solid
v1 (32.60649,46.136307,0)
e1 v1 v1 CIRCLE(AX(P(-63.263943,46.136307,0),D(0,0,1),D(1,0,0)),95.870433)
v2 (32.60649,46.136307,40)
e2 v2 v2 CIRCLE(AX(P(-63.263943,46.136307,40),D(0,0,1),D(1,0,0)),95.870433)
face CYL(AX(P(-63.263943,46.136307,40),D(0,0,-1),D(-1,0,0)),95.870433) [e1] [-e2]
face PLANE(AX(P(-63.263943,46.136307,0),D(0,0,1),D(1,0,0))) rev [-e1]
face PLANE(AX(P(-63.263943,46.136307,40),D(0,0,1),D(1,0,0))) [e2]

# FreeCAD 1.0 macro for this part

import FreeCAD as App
import Part
import Sketcher
Q = App.Units.Quantity

doc = App.newDocument("Part")
body = doc.addObject("PartDesign::Body", "Body")

# Sketch on XY plane
sketch1 = body.newObject("Sketcher::SketchObject", "Sketch")
sketch1.AttachmentSupport = (doc.getObject("XY_Plane"), [""])
sketch1.MapMode = "FlatFace"
sketch1.addGeometry(Part.Circle(App.Vector(-63, 46, 0), App.Vector(0, 0, 1), 96), False)
sketch1.addConstraint([
    Sketcher.Constraint("Diameter", 0, Q("191.740865 mm")),
    Sketcher.Constraint("DistanceX", 0, 3, -1, 1, Q("63.263943 mm")),
    Sketcher.Constraint("DistanceY", -1, 1, 0, 3, Q("46.136307 mm")),
])
pad1 = body.newObject("PartDesign::Pad", "Pad")
pad1.Profile = sketch1
pad1.Length = 40

doc.recompute()
